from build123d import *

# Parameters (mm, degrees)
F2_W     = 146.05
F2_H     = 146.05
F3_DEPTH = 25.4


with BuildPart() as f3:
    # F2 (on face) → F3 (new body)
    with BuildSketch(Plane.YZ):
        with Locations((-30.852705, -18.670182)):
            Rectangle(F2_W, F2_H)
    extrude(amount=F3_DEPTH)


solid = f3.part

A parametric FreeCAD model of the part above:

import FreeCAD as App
import Part
import Sketcher

V = App.Vector
Q = App.Units.Quantity

doc = App.newDocument("Part")
params = doc.addObject("Spreadsheet::Sheet", "Params")
for row, (alias, value) in enumerate([
    ("sketch1_width", "5.75 in"),
    ("pad1_length", "1 in"),
], start=1):
    params.set(f"A{row}", alias)
    params.set(f"B{row}", "=" + value)
    params.setAlias(f"B{row}", alias)

body = doc.addObject("PartDesign::Body", "Body")

sketch1 = doc.addObject("Sketcher::SketchObject", "Sketch")
body.addObject(sketch1)
sketch1.AttachmentSupport = (doc.YZ_Plane, [""])
sketch1.MapMode = "FlatFace"
sketch1.addGeometry([
    Part.LineSegment(V(-104, 54, 0), V(-104, -92, 0)),
    Part.LineSegment(V(-104, -92, 0), V(42, -92, 0)),
    Part.LineSegment(V(42, -92, 0), V(42, 54, 0)),
    Part.LineSegment(V(42, 54, 0), V(-104, 54, 0)),
], False)
sketch1.addConstraint([
    Sketcher.Constraint("Coincident", 0, 2, 1, 1),
    Sketcher.Constraint("Coincident", 1, 2, 2, 1),
    Sketcher.Constraint("Coincident", 2, 2, 3, 1),
    Sketcher.Constraint("Coincident", 3, 2, 0, 1),
    Sketcher.Constraint("Vertical", 0),
    Sketcher.Constraint("Horizontal", 1),
    Sketcher.Constraint("Vertical", 2),
    Sketcher.Constraint("Horizontal", 3),
    Sketcher.Constraint("Equal", 3, 0),
    Sketcher.Constraint("DistanceX", 1, 1, 1, 2, Q("5.75 in")),
    Sketcher.Constraint("DistanceY", -1, 1, 2, 2, Q("54.354818 mm")),
    Sketcher.Constraint("DistanceX", 0, 2, -1, 1, Q("103.877705 mm")),
])
sketch1.setExpression("Constraints[9]", "Params.sketch1_width")
pad1 = doc.addObject("PartDesign::Pad", "Pad")
body.addObject(pad1)
pad1.Profile = sketch1
pad1.setExpression("Length", "Params.pad1_length")

doc.recompute()
